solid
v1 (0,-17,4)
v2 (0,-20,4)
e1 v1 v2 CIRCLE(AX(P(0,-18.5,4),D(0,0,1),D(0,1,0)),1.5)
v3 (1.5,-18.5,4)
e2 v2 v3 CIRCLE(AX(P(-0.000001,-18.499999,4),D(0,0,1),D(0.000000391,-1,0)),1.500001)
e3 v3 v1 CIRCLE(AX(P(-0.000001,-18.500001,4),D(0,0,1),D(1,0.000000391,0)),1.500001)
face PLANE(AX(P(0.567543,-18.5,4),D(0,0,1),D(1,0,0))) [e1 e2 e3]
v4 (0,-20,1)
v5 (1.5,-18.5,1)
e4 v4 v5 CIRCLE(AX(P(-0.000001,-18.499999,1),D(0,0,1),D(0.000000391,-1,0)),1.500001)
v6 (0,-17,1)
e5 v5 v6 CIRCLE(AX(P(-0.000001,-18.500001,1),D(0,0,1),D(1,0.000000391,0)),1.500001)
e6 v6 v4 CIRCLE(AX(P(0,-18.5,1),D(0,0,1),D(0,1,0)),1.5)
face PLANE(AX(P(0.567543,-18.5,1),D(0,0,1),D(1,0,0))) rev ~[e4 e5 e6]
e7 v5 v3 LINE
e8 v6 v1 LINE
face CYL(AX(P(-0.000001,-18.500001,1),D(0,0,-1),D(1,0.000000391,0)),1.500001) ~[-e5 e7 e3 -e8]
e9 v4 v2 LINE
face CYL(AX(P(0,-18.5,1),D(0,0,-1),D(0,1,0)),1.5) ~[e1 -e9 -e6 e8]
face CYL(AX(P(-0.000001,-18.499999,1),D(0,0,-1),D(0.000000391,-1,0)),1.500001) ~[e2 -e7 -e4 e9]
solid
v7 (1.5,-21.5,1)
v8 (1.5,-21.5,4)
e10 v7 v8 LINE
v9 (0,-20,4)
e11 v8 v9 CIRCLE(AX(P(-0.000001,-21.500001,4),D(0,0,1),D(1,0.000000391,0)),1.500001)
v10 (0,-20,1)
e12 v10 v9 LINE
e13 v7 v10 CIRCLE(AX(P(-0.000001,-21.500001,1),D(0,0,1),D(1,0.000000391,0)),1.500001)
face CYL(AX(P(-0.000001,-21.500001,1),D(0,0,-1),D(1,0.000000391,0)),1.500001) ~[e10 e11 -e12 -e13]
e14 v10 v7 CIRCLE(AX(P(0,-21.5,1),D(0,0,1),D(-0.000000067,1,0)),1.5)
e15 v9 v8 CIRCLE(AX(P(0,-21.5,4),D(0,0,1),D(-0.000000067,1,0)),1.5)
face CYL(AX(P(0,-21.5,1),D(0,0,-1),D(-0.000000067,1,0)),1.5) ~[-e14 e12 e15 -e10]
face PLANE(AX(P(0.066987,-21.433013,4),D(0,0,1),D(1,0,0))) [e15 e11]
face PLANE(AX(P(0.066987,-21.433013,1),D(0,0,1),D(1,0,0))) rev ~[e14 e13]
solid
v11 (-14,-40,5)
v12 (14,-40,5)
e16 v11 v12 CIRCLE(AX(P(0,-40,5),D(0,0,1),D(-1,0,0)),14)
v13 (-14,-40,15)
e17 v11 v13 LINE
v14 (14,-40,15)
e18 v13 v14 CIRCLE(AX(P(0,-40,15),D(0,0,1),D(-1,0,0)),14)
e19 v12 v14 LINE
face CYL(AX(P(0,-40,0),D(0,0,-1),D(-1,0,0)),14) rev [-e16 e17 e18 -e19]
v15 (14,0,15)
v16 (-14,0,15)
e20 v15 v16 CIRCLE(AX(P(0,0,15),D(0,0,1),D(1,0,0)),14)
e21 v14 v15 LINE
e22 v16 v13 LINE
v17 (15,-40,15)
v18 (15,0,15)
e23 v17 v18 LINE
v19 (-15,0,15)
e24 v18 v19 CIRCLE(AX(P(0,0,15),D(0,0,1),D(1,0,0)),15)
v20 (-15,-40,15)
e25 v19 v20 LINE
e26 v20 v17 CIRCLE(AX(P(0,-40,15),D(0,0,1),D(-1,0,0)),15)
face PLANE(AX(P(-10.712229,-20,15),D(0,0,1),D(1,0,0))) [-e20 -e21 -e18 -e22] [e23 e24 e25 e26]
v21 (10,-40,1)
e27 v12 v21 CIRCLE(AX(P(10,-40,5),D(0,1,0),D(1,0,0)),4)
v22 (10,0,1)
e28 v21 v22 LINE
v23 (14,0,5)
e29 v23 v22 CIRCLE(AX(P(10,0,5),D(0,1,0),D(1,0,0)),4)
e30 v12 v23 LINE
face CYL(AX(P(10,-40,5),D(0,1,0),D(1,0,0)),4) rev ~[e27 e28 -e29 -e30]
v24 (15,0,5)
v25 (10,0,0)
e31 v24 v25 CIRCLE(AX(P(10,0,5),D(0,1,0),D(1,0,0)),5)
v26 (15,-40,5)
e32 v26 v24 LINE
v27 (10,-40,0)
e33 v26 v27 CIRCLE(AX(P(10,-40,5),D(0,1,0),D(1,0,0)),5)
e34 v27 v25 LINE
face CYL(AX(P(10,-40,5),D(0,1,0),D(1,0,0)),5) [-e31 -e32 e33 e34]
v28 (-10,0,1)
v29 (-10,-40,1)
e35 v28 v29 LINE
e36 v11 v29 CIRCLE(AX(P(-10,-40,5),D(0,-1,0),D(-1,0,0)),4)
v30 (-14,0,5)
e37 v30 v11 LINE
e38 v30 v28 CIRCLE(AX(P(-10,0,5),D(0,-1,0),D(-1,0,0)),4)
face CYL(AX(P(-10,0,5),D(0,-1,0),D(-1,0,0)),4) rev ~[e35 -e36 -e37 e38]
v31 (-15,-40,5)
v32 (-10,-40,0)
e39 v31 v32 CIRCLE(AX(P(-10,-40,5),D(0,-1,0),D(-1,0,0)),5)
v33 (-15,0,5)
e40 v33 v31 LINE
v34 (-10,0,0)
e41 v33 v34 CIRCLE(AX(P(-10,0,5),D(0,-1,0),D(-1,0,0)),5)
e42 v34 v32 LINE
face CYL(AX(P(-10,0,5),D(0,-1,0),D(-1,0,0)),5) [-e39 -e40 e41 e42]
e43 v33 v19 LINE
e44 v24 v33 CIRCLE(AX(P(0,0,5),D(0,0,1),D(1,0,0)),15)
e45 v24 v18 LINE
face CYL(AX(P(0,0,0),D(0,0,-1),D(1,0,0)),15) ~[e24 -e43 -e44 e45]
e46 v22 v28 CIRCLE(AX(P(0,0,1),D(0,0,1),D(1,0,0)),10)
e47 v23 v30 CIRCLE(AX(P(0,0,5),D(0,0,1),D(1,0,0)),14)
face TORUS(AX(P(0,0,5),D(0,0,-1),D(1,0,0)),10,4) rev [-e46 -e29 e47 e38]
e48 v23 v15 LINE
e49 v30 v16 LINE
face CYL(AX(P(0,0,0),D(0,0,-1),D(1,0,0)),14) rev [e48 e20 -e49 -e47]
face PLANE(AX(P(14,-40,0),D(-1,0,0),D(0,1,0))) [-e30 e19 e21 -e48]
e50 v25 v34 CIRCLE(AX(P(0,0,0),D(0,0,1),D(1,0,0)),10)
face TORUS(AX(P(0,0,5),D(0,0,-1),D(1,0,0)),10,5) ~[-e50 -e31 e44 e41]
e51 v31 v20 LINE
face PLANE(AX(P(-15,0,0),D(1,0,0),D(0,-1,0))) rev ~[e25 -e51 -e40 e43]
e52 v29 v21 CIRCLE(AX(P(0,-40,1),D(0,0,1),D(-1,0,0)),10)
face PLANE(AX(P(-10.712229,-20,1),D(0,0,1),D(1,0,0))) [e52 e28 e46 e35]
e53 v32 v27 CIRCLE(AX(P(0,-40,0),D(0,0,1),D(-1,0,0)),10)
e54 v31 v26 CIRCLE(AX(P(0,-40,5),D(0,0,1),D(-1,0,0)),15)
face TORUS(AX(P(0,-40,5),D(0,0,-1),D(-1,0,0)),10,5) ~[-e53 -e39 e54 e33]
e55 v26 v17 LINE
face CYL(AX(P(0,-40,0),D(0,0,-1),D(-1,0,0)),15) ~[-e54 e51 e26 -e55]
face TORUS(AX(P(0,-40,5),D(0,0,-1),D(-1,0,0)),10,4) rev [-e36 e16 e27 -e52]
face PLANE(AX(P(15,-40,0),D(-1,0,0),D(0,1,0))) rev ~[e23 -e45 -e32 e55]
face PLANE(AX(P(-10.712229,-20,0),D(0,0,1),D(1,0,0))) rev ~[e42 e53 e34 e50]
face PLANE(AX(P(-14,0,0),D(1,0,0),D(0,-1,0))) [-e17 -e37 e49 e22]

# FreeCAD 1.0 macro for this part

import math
import FreeCAD as App
import Part
import Sketcher


def edges_at(feature, points):
    """Names of the edges that pass closest to the given points."""
    edges = feature.Shape.Edges
    near = lambda p: min(range(len(edges)), key=lambda i: edges[i].distToShape(Part.Vertex(*p))[0])
    return sorted({f"Edge{near(p) + 1}" for p in points})


def faces_at(feature, points):
    """Names of the faces that lie closest to the given points."""
    faces = feature.Shape.Faces
    near = lambda p: min(range(len(faces)), key=lambda i: faces[i].distToShape(Part.Vertex(*p))[0])
    return sorted({f"Face{near(p) + 1}" for p in points})

doc = App.newDocument("Part")
body = doc.addObject("PartDesign::Body", "Body")

# Sketch on XY plane
sketch1 = body.newObject("Sketcher::SketchObject", "Sketch")
sketch1.AttachmentSupport = (doc.getObject("XY_Plane"), [""])
sketch1.MapMode = "FlatFace"
sketch1.addGeometry(Part.LineSegment(App.Vector(15, -40, 0), App.Vector(15, 0, 0)), False)
sketch1.addGeometry(Part.ArcOfCircle(Part.Circle(App.Vector(0, 0, 0), App.Vector(0, 0, 1), 15), math.radians(0), math.radians(180)), False)
sketch1.addGeometry(Part.LineSegment(App.Vector(-15, 0, 0), App.Vector(-15, -40, 0)), False)
sketch1.addGeometry(Part.ArcOfCircle(Part.Circle(App.Vector(0, -40, 0), App.Vector(0, 0, 1), 15), math.radians(180), math.radians(360)), False)
sketch1.addConstraint(Sketcher.Constraint("Tangent", 0, 2, 1, 1))
sketch1.addConstraint(Sketcher.Constraint("Tangent", 1, 2, 2, 1))
sketch1.addConstraint(Sketcher.Constraint("Tangent", 2, 2, 3, 1))
sketch1.addConstraint(Sketcher.Constraint("Tangent", 3, 2, 0, 1))
sketch1.addConstraint(Sketcher.Constraint("Vertical", 0))
sketch1.addConstraint(Sketcher.Constraint("Vertical", 2))
sketch1.addConstraint(Sketcher.Constraint("Coincident", 1, 3, -1, 1))
sketch1.addConstraint(Sketcher.Constraint("Radius", 1, 15.0))
sketch1.addConstraint(Sketcher.Constraint("DistanceY", 0, 1, 0, 2, 40.0))
pad1 = body.newObject("PartDesign::Pad", "Pad")
pad1.Profile = sketch1
pad1.Length = 15
doc.recompute()

fillet = body.newObject("PartDesign::Fillet", "Fillet")
fillet.Base = (pad1, edges_at(pad1, [(0, 15, 0)]))
fillet.Radius = 5
doc.recompute()

thickness = body.newObject("PartDesign::Thickness", "Thickness")
thickness.Base = (fillet, faces_at(fillet, [(0, -20, 15)]))
thickness.Value = 1
thickness.Reversed = True
thickness.Join = "Arc"
body2 = doc.addObject("PartDesign::Body", "Body001")
body2.AllowCompound = True

# Sketch on XY plane
sketch2 = body2.newObject("Sketcher::SketchObject", "Sketch001")
sketch2.AttachmentSupport = (doc.getObject("XY_Plane001"), [""])
sketch2.MapMode = "FlatFace"
sketch2.AttachmentOffset = App.Placement(App.Vector(0, 0, 1), App.Rotation())
sketch2.addGeometry(Part.ArcOfCircle(Part.Circle(App.Vector(0, -18.5, 0), App.Vector(0, 0, 1), 1.5), math.radians(0), math.radians(90)), False)
sketch2.addGeometry(Part.ArcOfCircle(Part.Circle(App.Vector(0, -18.5, 0), App.Vector(0, 0, 1), 1.5), math.radians(90), math.radians(270)), False)
sketch2.addGeometry(Part.ArcOfCircle(Part.Circle(App.Vector(0, -18.5, 0), App.Vector(0, 0, 1), 1.5), math.radians(-90), math.radians(0)), False)
sketch2.addGeometry(Part.ArcOfCircle(Part.Circle(App.Vector(0, -21.5, 0), App.Vector(0, 0, 1), 1.5), math.radians(0), math.radians(90)), False)
sketch2.addGeometry(Part.ArcOfCircle(Part.Circle(App.Vector(0, -21.5, 0), App.Vector(0, 0, 1), 1.5), math.radians(90), math.radians(360)), False)
sketch2.addConstraint(Sketcher.Constraint("Tangent", 0, 2, 1, 1))
sketch2.addConstraint(Sketcher.Constraint("Tangent", 1, 2, 2, 1))
sketch2.addConstraint(Sketcher.Constraint("Tangent", 2, 2, 0, 1))
sketch2.addConstraint(Sketcher.Constraint("Tangent", 3, 1, 4, 2))
sketch2.addConstraint(Sketcher.Constraint("Coincident", 4, 1, 3, 2))
sketch2.addConstraint(Sketcher.Constraint("Coincident", 4, 1, 1, 2))
sketch2.addConstraint(Sketcher.Constraint("Equal", 2, 3))
sketch2.addConstraint(Sketcher.Constraint("PointOnObject", 0, 3, -2))
sketch2.addConstraint(Sketcher.Constraint("PointOnObject", 3, 3, -2))
sketch2.addConstraint(Sketcher.Constraint("PointOnObject", 0, 2, -2))
sketch2.addConstraint(Sketcher.Constraint("PointOnObject", 1, 2, -2))
sketch2.addConstraint(Sketcher.Constraint("Horizontal", 1, 3, 2, 2))
sketch2.addConstraint(Sketcher.Constraint("Horizontal", 4, 3, 3, 1))
sketch2.addConstraint(Sketcher.Constraint("Radius", 0, 1.500001))
sketch2.addConstraint(Sketcher.Constraint("DistanceY", 0, 2, -1, 1, 17.0))
pad2 = body2.newObject("PartDesign::Pad", "Pad001")
pad2.Profile = sketch2
pad2.Length = 3

doc.recompute()
